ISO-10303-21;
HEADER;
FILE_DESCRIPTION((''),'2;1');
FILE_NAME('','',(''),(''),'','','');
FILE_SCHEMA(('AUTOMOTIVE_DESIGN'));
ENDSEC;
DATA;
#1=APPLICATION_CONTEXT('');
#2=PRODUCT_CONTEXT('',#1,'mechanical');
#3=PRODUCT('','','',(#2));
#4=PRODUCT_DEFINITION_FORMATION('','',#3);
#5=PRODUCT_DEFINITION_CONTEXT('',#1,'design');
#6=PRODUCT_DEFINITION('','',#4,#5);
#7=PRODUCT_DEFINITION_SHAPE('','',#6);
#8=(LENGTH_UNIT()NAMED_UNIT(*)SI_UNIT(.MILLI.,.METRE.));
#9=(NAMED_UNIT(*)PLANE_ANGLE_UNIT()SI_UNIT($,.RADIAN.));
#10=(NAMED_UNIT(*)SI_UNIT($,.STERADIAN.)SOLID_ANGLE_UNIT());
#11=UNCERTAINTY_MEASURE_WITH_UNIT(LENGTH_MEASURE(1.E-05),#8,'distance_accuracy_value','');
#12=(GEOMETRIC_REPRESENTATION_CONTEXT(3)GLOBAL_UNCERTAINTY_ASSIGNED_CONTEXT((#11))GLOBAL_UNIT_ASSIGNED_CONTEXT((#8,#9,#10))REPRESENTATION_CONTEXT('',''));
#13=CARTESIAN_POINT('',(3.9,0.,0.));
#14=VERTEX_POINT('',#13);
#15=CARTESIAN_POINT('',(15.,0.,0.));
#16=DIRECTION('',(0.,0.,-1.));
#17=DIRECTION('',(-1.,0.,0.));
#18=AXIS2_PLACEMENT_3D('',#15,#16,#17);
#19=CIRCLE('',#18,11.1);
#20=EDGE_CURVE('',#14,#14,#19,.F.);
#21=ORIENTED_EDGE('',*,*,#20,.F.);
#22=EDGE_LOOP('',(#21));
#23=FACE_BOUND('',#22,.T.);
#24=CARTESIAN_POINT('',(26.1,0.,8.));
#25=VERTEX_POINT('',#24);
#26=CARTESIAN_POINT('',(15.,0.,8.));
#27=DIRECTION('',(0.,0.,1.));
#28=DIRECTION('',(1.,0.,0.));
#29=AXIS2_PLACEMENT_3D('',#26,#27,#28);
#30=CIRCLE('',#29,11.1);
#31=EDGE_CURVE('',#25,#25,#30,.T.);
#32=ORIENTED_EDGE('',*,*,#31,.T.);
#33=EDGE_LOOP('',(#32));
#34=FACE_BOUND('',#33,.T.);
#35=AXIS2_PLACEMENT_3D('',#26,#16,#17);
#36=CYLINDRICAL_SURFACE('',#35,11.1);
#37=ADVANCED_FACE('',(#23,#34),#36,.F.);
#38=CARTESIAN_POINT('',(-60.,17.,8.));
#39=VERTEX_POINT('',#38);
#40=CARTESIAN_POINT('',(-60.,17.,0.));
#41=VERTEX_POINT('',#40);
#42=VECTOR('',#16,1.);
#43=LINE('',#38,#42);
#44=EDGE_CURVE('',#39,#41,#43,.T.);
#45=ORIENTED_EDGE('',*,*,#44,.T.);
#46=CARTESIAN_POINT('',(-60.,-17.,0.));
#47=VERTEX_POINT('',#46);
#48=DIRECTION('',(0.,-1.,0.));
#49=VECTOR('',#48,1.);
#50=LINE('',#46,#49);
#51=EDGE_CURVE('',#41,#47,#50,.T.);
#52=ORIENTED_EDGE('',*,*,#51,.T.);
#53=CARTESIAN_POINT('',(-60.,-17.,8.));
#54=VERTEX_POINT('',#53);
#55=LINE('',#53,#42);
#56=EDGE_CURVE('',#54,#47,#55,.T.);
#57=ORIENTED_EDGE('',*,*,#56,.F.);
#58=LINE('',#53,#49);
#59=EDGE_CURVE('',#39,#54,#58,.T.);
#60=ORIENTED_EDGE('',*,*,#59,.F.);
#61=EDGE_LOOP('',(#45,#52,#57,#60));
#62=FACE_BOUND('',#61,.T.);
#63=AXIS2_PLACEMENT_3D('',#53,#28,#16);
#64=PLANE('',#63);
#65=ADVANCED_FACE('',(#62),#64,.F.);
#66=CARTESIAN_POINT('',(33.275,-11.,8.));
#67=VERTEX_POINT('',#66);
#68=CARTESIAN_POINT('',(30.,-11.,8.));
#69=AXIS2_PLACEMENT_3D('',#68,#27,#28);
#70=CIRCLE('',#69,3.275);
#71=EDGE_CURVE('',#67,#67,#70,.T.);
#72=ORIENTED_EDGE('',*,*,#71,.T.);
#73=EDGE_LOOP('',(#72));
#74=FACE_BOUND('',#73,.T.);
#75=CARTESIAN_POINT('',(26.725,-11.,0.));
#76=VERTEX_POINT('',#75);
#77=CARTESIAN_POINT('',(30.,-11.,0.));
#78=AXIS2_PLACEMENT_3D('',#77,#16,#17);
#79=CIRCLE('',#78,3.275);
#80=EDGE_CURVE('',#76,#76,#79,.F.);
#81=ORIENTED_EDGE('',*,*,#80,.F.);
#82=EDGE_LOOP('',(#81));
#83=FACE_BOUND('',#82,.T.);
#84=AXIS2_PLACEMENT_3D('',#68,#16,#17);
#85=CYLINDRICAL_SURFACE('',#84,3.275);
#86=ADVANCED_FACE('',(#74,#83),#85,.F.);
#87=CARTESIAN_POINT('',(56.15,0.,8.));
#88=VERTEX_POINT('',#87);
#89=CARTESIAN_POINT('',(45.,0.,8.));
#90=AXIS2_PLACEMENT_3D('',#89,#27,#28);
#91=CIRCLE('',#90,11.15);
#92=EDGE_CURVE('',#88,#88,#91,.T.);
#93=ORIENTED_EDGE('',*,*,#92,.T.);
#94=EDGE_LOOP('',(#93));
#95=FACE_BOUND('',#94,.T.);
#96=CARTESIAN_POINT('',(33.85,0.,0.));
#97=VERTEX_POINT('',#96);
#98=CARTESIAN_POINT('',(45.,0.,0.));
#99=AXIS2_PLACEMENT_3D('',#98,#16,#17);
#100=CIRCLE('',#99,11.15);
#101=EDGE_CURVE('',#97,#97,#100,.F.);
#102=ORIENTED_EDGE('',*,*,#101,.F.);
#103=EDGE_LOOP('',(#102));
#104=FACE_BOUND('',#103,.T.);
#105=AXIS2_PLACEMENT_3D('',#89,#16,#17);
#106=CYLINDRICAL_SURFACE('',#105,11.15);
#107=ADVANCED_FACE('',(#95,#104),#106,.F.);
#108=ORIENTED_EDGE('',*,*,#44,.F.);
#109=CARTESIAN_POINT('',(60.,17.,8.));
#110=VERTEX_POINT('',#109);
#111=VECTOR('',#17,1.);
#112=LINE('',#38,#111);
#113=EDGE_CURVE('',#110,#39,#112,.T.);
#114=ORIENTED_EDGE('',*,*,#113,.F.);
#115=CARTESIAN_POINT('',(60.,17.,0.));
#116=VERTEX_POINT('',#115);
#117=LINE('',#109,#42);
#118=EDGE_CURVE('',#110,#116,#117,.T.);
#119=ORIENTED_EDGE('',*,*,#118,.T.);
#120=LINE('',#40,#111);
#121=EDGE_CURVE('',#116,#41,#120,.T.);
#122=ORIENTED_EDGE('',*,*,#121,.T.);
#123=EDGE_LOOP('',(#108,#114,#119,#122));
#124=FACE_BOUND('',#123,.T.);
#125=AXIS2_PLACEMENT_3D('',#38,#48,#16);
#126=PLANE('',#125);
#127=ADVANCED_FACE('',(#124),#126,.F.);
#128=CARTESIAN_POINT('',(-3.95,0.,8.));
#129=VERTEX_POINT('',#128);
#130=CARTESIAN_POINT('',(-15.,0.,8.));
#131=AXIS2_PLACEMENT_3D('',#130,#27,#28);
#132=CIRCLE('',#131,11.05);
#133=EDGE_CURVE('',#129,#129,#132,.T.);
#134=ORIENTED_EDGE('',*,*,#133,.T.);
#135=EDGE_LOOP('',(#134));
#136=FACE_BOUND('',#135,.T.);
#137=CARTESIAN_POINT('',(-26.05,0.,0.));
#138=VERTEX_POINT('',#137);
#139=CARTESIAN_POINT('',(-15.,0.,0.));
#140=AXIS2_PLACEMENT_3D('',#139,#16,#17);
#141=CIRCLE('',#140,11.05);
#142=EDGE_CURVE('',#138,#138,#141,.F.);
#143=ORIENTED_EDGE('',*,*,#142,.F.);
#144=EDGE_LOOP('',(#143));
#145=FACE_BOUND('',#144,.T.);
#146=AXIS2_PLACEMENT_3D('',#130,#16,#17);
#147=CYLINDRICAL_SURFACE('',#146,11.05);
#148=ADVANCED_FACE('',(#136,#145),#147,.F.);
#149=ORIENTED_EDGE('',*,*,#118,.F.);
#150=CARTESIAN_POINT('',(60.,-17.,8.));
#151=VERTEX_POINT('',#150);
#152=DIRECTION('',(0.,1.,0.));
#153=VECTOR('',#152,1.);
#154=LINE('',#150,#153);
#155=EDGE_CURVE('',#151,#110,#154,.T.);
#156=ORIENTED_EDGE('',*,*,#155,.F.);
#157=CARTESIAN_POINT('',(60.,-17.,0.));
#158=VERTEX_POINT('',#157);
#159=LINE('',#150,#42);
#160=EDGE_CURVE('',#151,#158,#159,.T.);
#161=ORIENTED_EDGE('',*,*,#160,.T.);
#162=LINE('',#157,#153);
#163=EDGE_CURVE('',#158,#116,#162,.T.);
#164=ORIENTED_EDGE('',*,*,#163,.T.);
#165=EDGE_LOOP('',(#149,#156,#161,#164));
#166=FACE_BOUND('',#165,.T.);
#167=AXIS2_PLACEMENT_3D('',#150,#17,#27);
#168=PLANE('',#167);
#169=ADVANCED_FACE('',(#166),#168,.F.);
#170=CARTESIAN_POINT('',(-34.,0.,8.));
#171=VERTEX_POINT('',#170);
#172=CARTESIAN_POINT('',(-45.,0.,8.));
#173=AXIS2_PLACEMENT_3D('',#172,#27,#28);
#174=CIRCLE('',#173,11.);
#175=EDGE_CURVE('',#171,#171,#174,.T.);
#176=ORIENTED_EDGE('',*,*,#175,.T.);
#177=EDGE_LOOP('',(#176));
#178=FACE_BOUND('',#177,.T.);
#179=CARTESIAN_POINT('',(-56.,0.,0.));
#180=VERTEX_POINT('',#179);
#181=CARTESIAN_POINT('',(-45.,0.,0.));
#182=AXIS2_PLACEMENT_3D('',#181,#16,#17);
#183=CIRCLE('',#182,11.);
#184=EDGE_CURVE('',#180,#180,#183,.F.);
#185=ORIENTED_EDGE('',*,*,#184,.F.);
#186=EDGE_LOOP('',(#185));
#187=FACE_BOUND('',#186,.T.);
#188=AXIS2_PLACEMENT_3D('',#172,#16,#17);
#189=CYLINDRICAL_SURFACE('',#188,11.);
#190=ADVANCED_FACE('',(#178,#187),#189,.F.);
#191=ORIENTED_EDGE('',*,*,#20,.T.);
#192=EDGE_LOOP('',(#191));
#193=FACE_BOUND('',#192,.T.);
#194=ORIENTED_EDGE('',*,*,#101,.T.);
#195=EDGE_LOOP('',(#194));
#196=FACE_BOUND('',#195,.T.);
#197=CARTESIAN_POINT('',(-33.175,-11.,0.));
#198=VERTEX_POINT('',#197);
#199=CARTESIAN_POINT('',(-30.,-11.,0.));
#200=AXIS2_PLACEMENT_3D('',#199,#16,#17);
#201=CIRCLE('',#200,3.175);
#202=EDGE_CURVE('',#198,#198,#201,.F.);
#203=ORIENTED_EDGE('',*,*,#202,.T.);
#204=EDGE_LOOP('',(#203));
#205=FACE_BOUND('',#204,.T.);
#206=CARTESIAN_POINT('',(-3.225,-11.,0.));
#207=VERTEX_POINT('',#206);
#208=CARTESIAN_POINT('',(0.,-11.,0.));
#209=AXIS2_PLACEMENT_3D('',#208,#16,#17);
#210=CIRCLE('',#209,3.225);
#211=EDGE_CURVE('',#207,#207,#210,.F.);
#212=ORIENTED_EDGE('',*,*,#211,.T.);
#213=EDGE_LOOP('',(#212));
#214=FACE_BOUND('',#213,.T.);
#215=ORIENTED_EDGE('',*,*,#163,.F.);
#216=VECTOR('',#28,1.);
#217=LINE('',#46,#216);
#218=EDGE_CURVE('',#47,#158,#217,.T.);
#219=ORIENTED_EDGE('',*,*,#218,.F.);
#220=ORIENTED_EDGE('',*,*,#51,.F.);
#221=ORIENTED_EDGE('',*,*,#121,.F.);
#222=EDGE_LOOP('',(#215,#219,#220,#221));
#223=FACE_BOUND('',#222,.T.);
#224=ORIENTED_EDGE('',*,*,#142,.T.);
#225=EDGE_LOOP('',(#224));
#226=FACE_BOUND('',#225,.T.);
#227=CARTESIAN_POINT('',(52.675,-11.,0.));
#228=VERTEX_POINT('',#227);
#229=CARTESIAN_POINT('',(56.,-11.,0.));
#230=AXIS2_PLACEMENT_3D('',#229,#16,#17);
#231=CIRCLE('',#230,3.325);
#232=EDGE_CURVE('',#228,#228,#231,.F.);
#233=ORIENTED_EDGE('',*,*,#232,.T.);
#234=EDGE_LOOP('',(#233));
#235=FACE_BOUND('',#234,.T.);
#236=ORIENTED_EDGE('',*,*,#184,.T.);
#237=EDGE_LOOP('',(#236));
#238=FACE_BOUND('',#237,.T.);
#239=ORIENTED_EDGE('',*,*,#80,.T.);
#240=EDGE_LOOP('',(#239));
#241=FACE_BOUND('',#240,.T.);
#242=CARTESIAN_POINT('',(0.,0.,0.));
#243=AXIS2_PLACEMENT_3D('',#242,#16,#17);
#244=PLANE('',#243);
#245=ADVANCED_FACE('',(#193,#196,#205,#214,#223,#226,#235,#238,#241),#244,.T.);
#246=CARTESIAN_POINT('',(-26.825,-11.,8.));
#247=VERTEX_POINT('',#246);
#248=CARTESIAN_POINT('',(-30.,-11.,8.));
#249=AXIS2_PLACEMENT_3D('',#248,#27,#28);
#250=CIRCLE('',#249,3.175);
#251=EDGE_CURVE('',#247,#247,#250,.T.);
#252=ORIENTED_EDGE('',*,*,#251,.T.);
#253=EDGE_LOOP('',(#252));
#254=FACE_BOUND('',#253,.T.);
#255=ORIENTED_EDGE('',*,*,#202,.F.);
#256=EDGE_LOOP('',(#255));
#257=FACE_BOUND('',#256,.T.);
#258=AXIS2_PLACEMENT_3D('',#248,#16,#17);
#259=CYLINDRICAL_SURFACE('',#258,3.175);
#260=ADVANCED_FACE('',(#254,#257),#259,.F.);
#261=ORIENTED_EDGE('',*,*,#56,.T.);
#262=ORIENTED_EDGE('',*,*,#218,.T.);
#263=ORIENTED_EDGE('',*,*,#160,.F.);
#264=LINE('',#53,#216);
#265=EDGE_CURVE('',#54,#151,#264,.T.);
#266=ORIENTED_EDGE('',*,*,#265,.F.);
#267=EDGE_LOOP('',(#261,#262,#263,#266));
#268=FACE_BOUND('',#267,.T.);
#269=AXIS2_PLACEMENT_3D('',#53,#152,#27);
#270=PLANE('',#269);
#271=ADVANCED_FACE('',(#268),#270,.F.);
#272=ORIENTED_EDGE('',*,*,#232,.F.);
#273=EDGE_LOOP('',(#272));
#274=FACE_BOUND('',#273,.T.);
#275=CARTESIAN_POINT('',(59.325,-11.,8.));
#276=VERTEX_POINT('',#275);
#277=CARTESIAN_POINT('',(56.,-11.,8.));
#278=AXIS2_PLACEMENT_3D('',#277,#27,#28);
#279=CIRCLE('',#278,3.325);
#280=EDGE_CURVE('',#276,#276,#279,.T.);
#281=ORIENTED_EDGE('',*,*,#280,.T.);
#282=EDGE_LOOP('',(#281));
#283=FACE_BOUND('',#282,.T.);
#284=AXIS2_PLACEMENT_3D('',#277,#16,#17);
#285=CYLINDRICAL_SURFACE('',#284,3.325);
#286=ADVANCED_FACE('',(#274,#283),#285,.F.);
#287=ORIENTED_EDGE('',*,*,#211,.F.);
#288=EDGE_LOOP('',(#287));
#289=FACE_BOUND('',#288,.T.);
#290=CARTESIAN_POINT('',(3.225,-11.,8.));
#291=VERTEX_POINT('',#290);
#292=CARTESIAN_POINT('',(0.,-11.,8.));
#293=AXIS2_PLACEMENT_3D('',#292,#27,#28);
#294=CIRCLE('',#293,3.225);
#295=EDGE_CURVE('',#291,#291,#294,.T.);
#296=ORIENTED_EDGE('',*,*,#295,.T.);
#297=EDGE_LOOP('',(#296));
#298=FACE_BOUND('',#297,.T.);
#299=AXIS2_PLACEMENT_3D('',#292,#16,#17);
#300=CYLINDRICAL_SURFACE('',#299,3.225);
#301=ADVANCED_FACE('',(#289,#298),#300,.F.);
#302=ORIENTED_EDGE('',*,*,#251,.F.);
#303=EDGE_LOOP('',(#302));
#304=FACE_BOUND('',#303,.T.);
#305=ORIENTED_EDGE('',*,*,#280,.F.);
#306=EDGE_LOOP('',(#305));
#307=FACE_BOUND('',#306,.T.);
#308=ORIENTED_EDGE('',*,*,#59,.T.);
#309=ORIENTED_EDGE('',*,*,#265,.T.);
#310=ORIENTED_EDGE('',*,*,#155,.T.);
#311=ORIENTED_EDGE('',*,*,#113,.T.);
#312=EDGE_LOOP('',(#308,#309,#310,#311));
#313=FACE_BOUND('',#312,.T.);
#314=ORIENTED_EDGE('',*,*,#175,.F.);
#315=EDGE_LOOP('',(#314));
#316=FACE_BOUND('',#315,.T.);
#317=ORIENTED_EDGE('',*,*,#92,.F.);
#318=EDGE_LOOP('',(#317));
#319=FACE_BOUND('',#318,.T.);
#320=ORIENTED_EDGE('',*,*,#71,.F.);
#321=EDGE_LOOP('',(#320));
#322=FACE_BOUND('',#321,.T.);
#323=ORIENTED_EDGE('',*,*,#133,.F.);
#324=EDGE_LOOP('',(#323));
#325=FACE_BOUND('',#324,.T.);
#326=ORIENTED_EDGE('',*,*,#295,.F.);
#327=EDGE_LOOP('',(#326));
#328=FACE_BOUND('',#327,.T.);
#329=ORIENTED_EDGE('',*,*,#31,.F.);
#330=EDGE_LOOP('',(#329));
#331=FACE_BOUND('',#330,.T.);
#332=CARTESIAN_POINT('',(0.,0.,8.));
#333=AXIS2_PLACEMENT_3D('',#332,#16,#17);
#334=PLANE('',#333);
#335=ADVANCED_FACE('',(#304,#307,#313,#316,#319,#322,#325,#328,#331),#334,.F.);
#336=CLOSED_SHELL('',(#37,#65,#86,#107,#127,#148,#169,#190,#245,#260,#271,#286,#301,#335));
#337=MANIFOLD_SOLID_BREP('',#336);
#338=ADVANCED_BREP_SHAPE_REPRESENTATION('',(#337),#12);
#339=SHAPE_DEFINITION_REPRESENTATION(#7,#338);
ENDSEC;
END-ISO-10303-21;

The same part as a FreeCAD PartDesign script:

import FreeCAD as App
import Part
import Sketcher
Q = App.Units.Quantity

doc = App.newDocument("Part")
body = doc.addObject("PartDesign::Body", "Body")

sketch1 = body.newObject("Sketcher::SketchObject", "Sketch")
sketch1.AttachmentSupport = (doc.getObject("XY_Plane"), [""])
sketch1.MapMode = "FlatFace"
sketch1.addGeometry(Part.LineSegment(App.Vector(-60, 17, 0), App.Vector(-60, -17, 0)), False)
sketch1.addGeometry(Part.LineSegment(App.Vector(-60, -17, 0), App.Vector(60, -17, 0)), False)
sketch1.addGeometry(Part.LineSegment(App.Vector(60, -17, 0), App.Vector(60, 17, 0)), False)
sketch1.addGeometry(Part.LineSegment(App.Vector(60, 17, 0), App.Vector(-60, 17, 0)), False)
sketch1.addConstraint(Sketcher.Constraint("Coincident", 0, 2, 1, 1))
sketch1.addConstraint(Sketcher.Constraint("Coincident", 1, 2, 2, 1))
sketch1.addConstraint(Sketcher.Constraint("Coincident", 2, 2, 3, 1))
sketch1.addConstraint(Sketcher.Constraint("Coincident", 3, 2, 0, 1))
sketch1.addConstraint(Sketcher.Constraint("Vertical", 0))
sketch1.addConstraint(Sketcher.Constraint("Horizontal", 1))
sketch1.addConstraint(Sketcher.Constraint("Vertical", 2))
sketch1.addConstraint(Sketcher.Constraint("Horizontal", 3))
sketch1.addConstraint(Sketcher.Constraint("Symmetric", 0, 2, 2, 2, -1, 1))
sketch1.addConstraint(Sketcher.Constraint("DistanceX", 1, 1, 1, 2, Q("120 mm")))
sketch1.addConstraint(Sketcher.Constraint("DistanceY", 0, 2, 0, 1, Q("34 mm")))
pad1 = body.newObject("PartDesign::Pad", "Pad")
pad1.Profile = sketch1
pad1.Length = 8

sketch2 = body.newObject("Sketcher::SketchObject", "Sketch001")
sketch2.AttachmentSupport = (doc.getObject("XY_Plane"), [""])
sketch2.MapMode = "FlatFace"
sketch2.AttachmentOffset = App.Placement(App.Vector(0, 0, -1), App.Rotation())
sketch2.addGeometry(Part.Circle(App.Vector(-45, 0, 0), App.Vector(0, 0, 1), 11), False)
sketch2.addGeometry(Part.Circle(App.Vector(-15, 0, 0), App.Vector(0, 0, 1), 11.05), False)
sketch2.addGeometry(Part.Circle(App.Vector(15, 0, 0), App.Vector(0, 0, 1), 11.1), False)
sketch2.addGeometry(Part.Circle(App.Vector(45, 0, 0), App.Vector(0, 0, 1), 11.15), False)
sketch2.addConstraint(Sketcher.Constraint("Symmetric", 1, 3, 2, 3, -1, 1))
sketch2.addConstraint(Sketcher.Constraint("Symmetric", 0, 3, 3, 3, -1, 1))
sketch2.addConstraint(Sketcher.Constraint("PointOnObject", 0, 3, -1))
sketch2.addConstraint(Sketcher.Constraint("PointOnObject", 1, 3, -1))
sketch2.addConstraint(Sketcher.Constraint("Diameter", 0, Q("22 mm")))
sketch2.addConstraint(Sketcher.Constraint("Diameter", 1, Q("22.1 mm")))
sketch2.addConstraint(Sketcher.Constraint("Diameter", 2, Q("22.2 mm")))
sketch2.addConstraint(Sketcher.Constraint("Diameter", 3, Q("22.3 mm")))
sketch2.addConstraint(Sketcher.Constraint("DistanceX", 0, 3, -1, 1, Q("45 mm")))
sketch2.addConstraint(Sketcher.Constraint("DistanceX", 1, 3, -1, 1, Q("15 mm")))
pocket1 = body.newObject("PartDesign::Pocket", "Pocket")
pocket1.Profile = sketch2
pocket1.Type = "ThroughAll"
pocket1.Reversed = True

sketch3 = body.newObject("Sketcher::SketchObject", "Sketch002")
sketch3.AttachmentSupport = (doc.getObject("XY_Plane"), [""])
sketch3.MapMode = "FlatFace"
sketch3.AttachmentOffset = App.Placement(App.Vector(0, 0, -1), App.Rotation())
sketch3.addGeometry(Part.Circle(App.Vector(-30, -11, 0), App.Vector(0, 0, 1), 3.175), False)
sketch3.addGeometry(Part.Circle(App.Vector(0, -11, 0), App.Vector(0, 0, 1), 3.225), False)
sketch3.addGeometry(Part.Circle(App.Vector(30, -11, 0), App.Vector(0, 0, 1), 3.275), False)
sketch3.addGeometry(Part.Circle(App.Vector(56, -11, 0), App.Vector(0, 0, 1), 3.325), False)
sketch3.addConstraint(Sketcher.Constraint("Symmetric", 0, 3, 2, 3, -2))
sketch3.addConstraint(Sketcher.Constraint("PointOnObject", 1, 3, -2))
sketch3.addConstraint(Sketcher.Constraint("Horizontal", 0, 3, 1, 3))
sketch3.addConstraint(Sketcher.Constraint("Horizontal", 2, 3, 3, 3))
sketch3.addConstraint(Sketcher.Constraint("Diameter", 0, Q("6.35 mm")))
sketch3.addConstraint(Sketcher.Constraint("Diameter", 1, Q("6.45 mm")))
sketch3.addConstraint(Sketcher.Constraint("Diameter", 2, Q("6.55 mm")))
sketch3.addConstraint(Sketcher.Constraint("Diameter", 3, Q("6.65 mm")))
sketch3.addConstraint(Sketcher.Constraint("DistanceX", 0, 3, -1, 1, Q("30 mm")))
sketch3.addConstraint(Sketcher.Constraint("DistanceY", 0, 3, -1, 1, Q("11 mm")))
sketch3.addConstraint(Sketcher.Constraint("DistanceX", -1, 1, 3, 3, Q("56 mm")))
pocket2 = body.newObject("PartDesign::Pocket", "Pocket001")
pocket2.Profile = sketch3
pocket2.Type = "ThroughAll"
pocket2.Reversed = True

doc.recompute()
